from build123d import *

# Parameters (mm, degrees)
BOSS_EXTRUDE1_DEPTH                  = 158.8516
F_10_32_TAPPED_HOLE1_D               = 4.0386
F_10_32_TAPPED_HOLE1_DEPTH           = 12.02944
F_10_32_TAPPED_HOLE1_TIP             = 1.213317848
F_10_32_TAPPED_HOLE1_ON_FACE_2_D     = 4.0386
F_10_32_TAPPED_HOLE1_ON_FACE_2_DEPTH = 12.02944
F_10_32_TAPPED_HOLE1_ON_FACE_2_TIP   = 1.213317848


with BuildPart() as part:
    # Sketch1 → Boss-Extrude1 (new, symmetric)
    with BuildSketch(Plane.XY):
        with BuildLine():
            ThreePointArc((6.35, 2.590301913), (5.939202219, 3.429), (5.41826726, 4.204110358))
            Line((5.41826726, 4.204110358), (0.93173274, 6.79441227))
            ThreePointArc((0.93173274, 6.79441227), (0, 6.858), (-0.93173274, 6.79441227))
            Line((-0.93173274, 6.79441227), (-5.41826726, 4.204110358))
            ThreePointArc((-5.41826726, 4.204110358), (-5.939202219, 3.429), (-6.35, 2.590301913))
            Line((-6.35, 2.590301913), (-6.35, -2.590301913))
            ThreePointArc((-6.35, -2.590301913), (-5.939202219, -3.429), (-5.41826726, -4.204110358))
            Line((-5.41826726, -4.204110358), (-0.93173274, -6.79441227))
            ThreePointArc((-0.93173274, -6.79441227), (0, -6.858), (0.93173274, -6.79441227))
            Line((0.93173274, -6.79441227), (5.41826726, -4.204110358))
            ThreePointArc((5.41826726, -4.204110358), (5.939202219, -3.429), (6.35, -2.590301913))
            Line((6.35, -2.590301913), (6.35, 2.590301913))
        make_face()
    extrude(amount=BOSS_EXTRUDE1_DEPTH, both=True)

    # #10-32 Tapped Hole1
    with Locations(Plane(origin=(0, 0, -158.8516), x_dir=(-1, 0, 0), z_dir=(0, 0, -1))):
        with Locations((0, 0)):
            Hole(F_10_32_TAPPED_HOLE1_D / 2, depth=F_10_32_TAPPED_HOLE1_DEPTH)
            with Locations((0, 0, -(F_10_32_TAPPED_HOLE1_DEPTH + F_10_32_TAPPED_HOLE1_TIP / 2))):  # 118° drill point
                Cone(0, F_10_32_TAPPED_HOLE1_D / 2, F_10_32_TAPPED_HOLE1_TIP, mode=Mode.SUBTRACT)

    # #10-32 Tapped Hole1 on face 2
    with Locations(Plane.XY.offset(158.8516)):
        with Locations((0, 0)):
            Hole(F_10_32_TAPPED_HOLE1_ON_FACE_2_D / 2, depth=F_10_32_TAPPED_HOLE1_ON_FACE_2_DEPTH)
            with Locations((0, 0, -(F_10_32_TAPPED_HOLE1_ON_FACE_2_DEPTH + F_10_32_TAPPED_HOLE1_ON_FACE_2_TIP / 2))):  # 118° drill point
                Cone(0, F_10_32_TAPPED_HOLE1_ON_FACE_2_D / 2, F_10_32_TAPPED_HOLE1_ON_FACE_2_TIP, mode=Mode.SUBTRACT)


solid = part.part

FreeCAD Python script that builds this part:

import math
import FreeCAD as App
import Part
import Sketcher
from FreeCAD import Vector
Q = App.Units.Quantity

doc = App.newDocument("Part")
body = doc.addObject("PartDesign::Body", "Body")

# Sketch on XY plane
sketch1 = body.newObject("Sketcher::SketchObject", "Sketch")
sketch1.AttachmentSupport = (doc.getObject("XY_Plane"), [""])
sketch1.MapMode = "FlatFace"
sketch1.addGeometry(Part.ArcOfCircle(Part.Circle(Vector(0, 0, 0), Vector(0, 0, 1), 6.9), math.radians(22.19), math.radians(37.81)), False)
sketch1.addGeometry(Part.LineSegment(Vector(5.4, 4.2, 0), Vector(0.9, 6.8, 0)), False)
sketch1.addGeometry(Part.ArcOfCircle(Part.Circle(Vector(0, 0, 0), Vector(0, 0, 1), 6.9), math.radians(82.19), math.radians(97.81)), False)
sketch1.addGeometry(Part.LineSegment(Vector(-0.9, 6.8, 0), Vector(-5.4, 4.2, 0)), False)
sketch1.addGeometry(Part.ArcOfCircle(Part.Circle(Vector(0, 0, 0), Vector(0, 0, 1), 6.9), math.radians(142.19), math.radians(157.81)), False)
sketch1.addGeometry(Part.LineSegment(Vector(-6.3, 2.6, 0), Vector(-6.3, -2.6, 0)), False)
sketch1.addGeometry(Part.ArcOfCircle(Part.Circle(Vector(0, 0, 0), Vector(0, 0, 1), 6.9), math.radians(-157.81), math.radians(-142.19)), False)
sketch1.addGeometry(Part.LineSegment(Vector(-5.4, -4.2, 0), Vector(-0.9, -6.8, 0)), False)
sketch1.addGeometry(Part.ArcOfCircle(Part.Circle(Vector(0, 0, 0), Vector(0, 0, 1), 6.9), math.radians(-97.81), math.radians(-82.19)), False)
sketch1.addGeometry(Part.LineSegment(Vector(0.9, -6.8, 0), Vector(5.4, -4.2, 0)), False)
sketch1.addGeometry(Part.ArcOfCircle(Part.Circle(Vector(0, 0, 0), Vector(0, 0, 1), 6.9), math.radians(-37.81), math.radians(-22.19)), False)
sketch1.addGeometry(Part.LineSegment(Vector(6.3, -2.6, 0), Vector(6.3, 2.6, 0)), False)
sketch1.addConstraint(Sketcher.Constraint("Coincident", 0, 2, 1, 1))
sketch1.addConstraint(Sketcher.Constraint("Coincident", 1, 2, 2, 1))
sketch1.addConstraint(Sketcher.Constraint("Coincident", 2, 2, 3, 1))
sketch1.addConstraint(Sketcher.Constraint("Coincident", 3, 2, 4, 1))
sketch1.addConstraint(Sketcher.Constraint("Coincident", 4, 2, 5, 1))
sketch1.addConstraint(Sketcher.Constraint("Coincident", 5, 2, 6, 1))
sketch1.addConstraint(Sketcher.Constraint("Coincident", 6, 2, 7, 1))
sketch1.addConstraint(Sketcher.Constraint("Coincident", 7, 2, 8, 1))
sketch1.addConstraint(Sketcher.Constraint("Coincident", 8, 2, 9, 1))
sketch1.addConstraint(Sketcher.Constraint("Coincident", 9, 2, 10, 1))
sketch1.addConstraint(Sketcher.Constraint("Coincident", 10, 2, 11, 1))
sketch1.addConstraint(Sketcher.Constraint("Coincident", 11, 2, 0, 1))
sketch1.addConstraint(Sketcher.Constraint("Vertical", 5))
sketch1.addConstraint(Sketcher.Constraint("Vertical", 11))
sketch1.addConstraint(Sketcher.Constraint("Coincident", 0, 3, -1, 1))
sketch1.addConstraint(Sketcher.Constraint("Coincident", 2, 3, -1, 1))
sketch1.addConstraint(Sketcher.Constraint("Coincident", 4, 3, -1, 1))
sketch1.addConstraint(Sketcher.Constraint("Coincident", 6, 3, -1, 1))
sketch1.addConstraint(Sketcher.Constraint("Coincident", 8, 3, -1, 1))
sketch1.addConstraint(Sketcher.Constraint("Coincident", 10, 3, -1, 1))
sketch1.addConstraint(Sketcher.Constraint("Equal", 0, 2))
sketch1.addConstraint(Sketcher.Constraint("Equal", 2, 4))
sketch1.addConstraint(Sketcher.Constraint("Equal", 4, 6))
sketch1.addConstraint(Sketcher.Constraint("Equal", 6, 8))
sketch1.addConstraint(Sketcher.Constraint("Equal", 8, 10))
sketch1.addConstraint(Sketcher.Constraint("Parallel", 1, 7))
sketch1.addConstraint(Sketcher.Constraint("Parallel", 3, 9))
sketch1.addConstraint(Sketcher.Constraint("Horizontal", 1, 2, 2, 2))
sketch1.addConstraint(Sketcher.Constraint("Horizontal", 0, 2, 3, 2))
sketch1.addConstraint(Sketcher.Constraint("Horizontal", 7, 2, 8, 2))
sketch1.addConstraint(Sketcher.Constraint("Horizontal", 5, 2, 10, 2))
sketch1.addConstraint(Sketcher.Constraint("Vertical", 3, 2, 6, 2))
sketch1.addConstraint(Sketcher.Constraint("Radius", 0, Q("0.27 in")))
sketch1.addConstraint(Sketcher.Constraint("Angle", 1, Q("150 deg")))
sketch1.addConstraint(Sketcher.Constraint("DistanceX", 4, 2, -1, 1, Q("0.25 in")))
sketch1.addConstraint(Sketcher.Constraint("DistanceX", 2, 2, 0, 2, Q("0.25 in")))
pad1 = body.newObject("PartDesign::Pad", "Pad")
pad1.Profile = sketch1
pad1.Length = Q("12.508 in")
pad1.Midplane = True

# Sketch on XY plane
sketch2 = body.newObject("Sketcher::SketchObject", "Sketch001")
sketch2.AttachmentSupport = (doc.getObject("XY_Plane"), [""])
sketch2.MapMode = "FlatFace"
sketch2.AttachmentOffset = App.Placement(Vector(0, 0, -6.254 * 25.4), App.Rotation())
sketch2.addGeometry(Part.Circle(Vector(0, 0, 0), Vector(0, 0, 1), 2), False)
sketch2.addConstraint(Sketcher.Constraint("Coincident", 0, 3, -1, 1))
sketch2.addConstraint(Sketcher.Constraint("Diameter", 0, Q("0.159 in")))
doc.recompute()
hole = body.newObject("PartDesign::Hole", "Hole")
hole.Profile = sketch2
hole.ThreadType = "None"
hole.Diameter = Q("0.159 in")
hole.DepthType = "Dimension"
hole.Depth = Q("0.4736 in")
hole.DrillPoint = "Angled"
hole.DrillPointAngle = 118
hole.Reversed = True

# Sketch on XY plane
sketch3 = body.newObject("Sketcher::SketchObject", "Sketch002")
sketch3.AttachmentSupport = (doc.getObject("XY_Plane"), [""])
sketch3.MapMode = "FlatFace"
sketch3.AttachmentOffset = App.Placement(Vector(0, 0, 6.254 * 25.4), App.Rotation())
sketch3.addGeometry(Part.Circle(Vector(0, 0, 0), Vector(0, 0, 1), 2), False)
sketch3.addConstraint(Sketcher.Constraint("Coincident", 0, 3, -1, 1))
sketch3.addConstraint(Sketcher.Constraint("Diameter", 0, Q("0.159 in")))
doc.recompute()
hole2 = body.newObject("PartDesign::Hole", "Hole001")
hole2.Profile = sketch3
hole2.ThreadType = "None"
hole2.Diameter = Q("0.159 in")
hole2.DepthType = "Dimension"
hole2.Depth = Q("0.4736 in")
hole2.DrillPoint = "Angled"
hole2.DrillPointAngle = 118

doc.recompute()
